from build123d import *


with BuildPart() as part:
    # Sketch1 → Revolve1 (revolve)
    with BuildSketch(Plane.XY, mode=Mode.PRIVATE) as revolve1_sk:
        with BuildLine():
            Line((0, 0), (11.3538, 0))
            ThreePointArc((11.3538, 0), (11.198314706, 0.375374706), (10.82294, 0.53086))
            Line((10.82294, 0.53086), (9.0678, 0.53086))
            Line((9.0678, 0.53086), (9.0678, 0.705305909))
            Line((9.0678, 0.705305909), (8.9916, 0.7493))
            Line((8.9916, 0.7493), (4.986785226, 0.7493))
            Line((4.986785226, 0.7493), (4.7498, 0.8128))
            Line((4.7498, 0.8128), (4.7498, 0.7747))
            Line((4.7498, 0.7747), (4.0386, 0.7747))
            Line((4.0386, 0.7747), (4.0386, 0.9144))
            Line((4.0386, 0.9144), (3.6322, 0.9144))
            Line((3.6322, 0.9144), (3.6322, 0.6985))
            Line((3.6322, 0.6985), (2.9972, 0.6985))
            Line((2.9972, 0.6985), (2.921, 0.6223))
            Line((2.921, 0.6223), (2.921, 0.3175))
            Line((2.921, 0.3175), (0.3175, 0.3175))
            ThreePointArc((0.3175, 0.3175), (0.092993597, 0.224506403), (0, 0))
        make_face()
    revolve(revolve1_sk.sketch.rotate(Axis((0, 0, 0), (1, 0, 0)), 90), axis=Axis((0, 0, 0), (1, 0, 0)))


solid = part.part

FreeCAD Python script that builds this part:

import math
import FreeCAD as App
import Part
import Sketcher
Q = App.Units.Quantity

doc = App.newDocument("Part")
body = doc.addObject("PartDesign::Body", "Body")

sketch1 = body.newObject("Sketcher::SketchObject", "Sketch")
sketch1.AttachmentSupport = (doc.getObject("XY_Plane"), [""])
sketch1.MapMode = "FlatFace"
sketch1.addGeometry([
    Part.LineSegment(App.Vector(0, 0, 0), App.Vector(11.354, 0, 0)),
    Part.ArcOfCircle(Part.Circle(App.Vector(10.823, 0, 0), App.Vector(0, 0, 1), 0.531), math.radians(0), math.radians(90)),
    Part.LineSegment(App.Vector(10.823, 0.531, 0), App.Vector(9.068, 0.531, 0)),
    Part.LineSegment(App.Vector(9.068, 0.531, 0), App.Vector(9.068, 0.705, 0)),
    Part.LineSegment(App.Vector(9.068, 0.705, 0), App.Vector(8.992, 0.749, 0)),
    Part.LineSegment(App.Vector(8.992, 0.749, 0), App.Vector(4.987, 0.749, 0)),
    Part.LineSegment(App.Vector(4.987, 0.749, 0), App.Vector(4.75, 0.813, 0)),
    Part.LineSegment(App.Vector(4.75, 0.813, 0), App.Vector(4.75, 0.775, 0)),
    Part.LineSegment(App.Vector(4.75, 0.775, 0), App.Vector(4.039, 0.775, 0)),
    Part.LineSegment(App.Vector(4.039, 0.775, 0), App.Vector(4.039, 0.914, 0)),
    Part.LineSegment(App.Vector(4.039, 0.914, 0), App.Vector(3.632, 0.914, 0)),
    Part.LineSegment(App.Vector(3.632, 0.914, 0), App.Vector(3.632, 0.699, 0)),
    Part.LineSegment(App.Vector(3.632, 0.699, 0), App.Vector(2.997, 0.699, 0)),
    Part.LineSegment(App.Vector(2.997, 0.699, 0), App.Vector(2.921, 0.622, 0)),
    Part.LineSegment(App.Vector(2.921, 0.622, 0), App.Vector(2.921, 0.318, 0)),
    Part.LineSegment(App.Vector(2.921, 0.318, 0), App.Vector(0.318, 0.318, 0)),
    Part.ArcOfCircle(Part.Circle(App.Vector(0.318, 0, 0), App.Vector(0, 0, 1), 0.318), math.radians(90), math.radians(180)),
], False)
sketch1.addConstraint([
    Sketcher.Constraint("Coincident", 0, 2, 1, 1),
    Sketcher.Constraint("Tangent", 1, 2, 2, 1),
    Sketcher.Constraint("Coincident", 2, 2, 3, 1),
    Sketcher.Constraint("Coincident", 3, 2, 4, 1),
    Sketcher.Constraint("Coincident", 4, 2, 5, 1),
    Sketcher.Constraint("Coincident", 5, 2, 6, 1),
    Sketcher.Constraint("Coincident", 6, 2, 7, 1),
    Sketcher.Constraint("Coincident", 7, 2, 8, 1),
    Sketcher.Constraint("Coincident", 8, 2, 9, 1),
    Sketcher.Constraint("Coincident", 9, 2, 10, 1),
    Sketcher.Constraint("Coincident", 10, 2, 11, 1),
    Sketcher.Constraint("Coincident", 11, 2, 12, 1),
    Sketcher.Constraint("Coincident", 12, 2, 13, 1),
    Sketcher.Constraint("Coincident", 13, 2, 14, 1),
    Sketcher.Constraint("Coincident", 14, 2, 15, 1),
    Sketcher.Constraint("Tangent", 15, 2, 16, 1),
    Sketcher.Constraint("Coincident", 16, 2, 0, 1),
    Sketcher.Constraint("Horizontal", 0),
    Sketcher.Constraint("Horizontal", 2),
    Sketcher.Constraint("Vertical", 3),
    Sketcher.Constraint("Horizontal", 5),
    Sketcher.Constraint("Vertical", 7),
    Sketcher.Constraint("Horizontal", 8),
    Sketcher.Constraint("Vertical", 9),
    Sketcher.Constraint("Horizontal", 10),
    Sketcher.Constraint("Vertical", 11),
    Sketcher.Constraint("Horizontal", 12),
    Sketcher.Constraint("Vertical", 14),
    Sketcher.Constraint("Horizontal", 15),
    Sketcher.Constraint("Coincident", 16, 2, -1, 1),
    Sketcher.Constraint("PointOnObject", 1, 3, -1),
    Sketcher.Constraint("PointOnObject", 16, 3, -1),
    Sketcher.Constraint("Angle", 4, Q("150 deg")),
    Sketcher.Constraint("Angle", 6, Q("165 deg")),
    Sketcher.Constraint("Angle", 13, Q("-135 deg")),
    Sketcher.Constraint("Radius", 1, Q("0.0209 in")),
    Sketcher.Constraint("Radius", 16, Q("0.0125 in")),
    Sketcher.Constraint("DistanceX", 0, 1, 0, 2, Q("0.447 in")),
    Sketcher.Constraint("DistanceX", 8, 2, 8, 1, Q("0.028 in")),
    Sketcher.Constraint("DistanceX", 10, 2, 10, 1, Q("0.016 in")),
    Sketcher.Constraint("DistanceX", 12, 2, 12, 1, Q("0.025 in")),
    Sketcher.Constraint("DistanceY", 14, 2, 14, 1, Q("0.012 in")),
    Sketcher.Constraint("DistanceX", 2, 2, 0, 2, Q("0.09 in")),
    Sketcher.Constraint("DistanceX", 6, 2, 3, 2, Q("0.17 in")),
    Sketcher.Constraint("DistanceX", 15, 2, 15, 1, Q("0.1025 in")),
    Sketcher.Constraint("DistanceY", 7, 2, 7, 1, Q("0.0015 in")),
    Sketcher.Constraint("DistanceY", 9, 1, 9, 2, Q("0.0055 in")),
    Sketcher.Constraint("DistanceY", 11, 2, 11, 1, Q("0.0085 in")),
    Sketcher.Constraint("DistanceX", -1, 1, 4, 2, Q("0.354 in")),
    Sketcher.Constraint("DistanceY", 5, 2, 7, 2, Q("0.001 in")),
])
revolution = body.newObject("PartDesign::Revolution", "Revolution")
revolution.Profile = sketch1
revolution.ReferenceAxis = (sketch1, ["H_Axis"])
revolution.Angle = 360

doc.recompute()
